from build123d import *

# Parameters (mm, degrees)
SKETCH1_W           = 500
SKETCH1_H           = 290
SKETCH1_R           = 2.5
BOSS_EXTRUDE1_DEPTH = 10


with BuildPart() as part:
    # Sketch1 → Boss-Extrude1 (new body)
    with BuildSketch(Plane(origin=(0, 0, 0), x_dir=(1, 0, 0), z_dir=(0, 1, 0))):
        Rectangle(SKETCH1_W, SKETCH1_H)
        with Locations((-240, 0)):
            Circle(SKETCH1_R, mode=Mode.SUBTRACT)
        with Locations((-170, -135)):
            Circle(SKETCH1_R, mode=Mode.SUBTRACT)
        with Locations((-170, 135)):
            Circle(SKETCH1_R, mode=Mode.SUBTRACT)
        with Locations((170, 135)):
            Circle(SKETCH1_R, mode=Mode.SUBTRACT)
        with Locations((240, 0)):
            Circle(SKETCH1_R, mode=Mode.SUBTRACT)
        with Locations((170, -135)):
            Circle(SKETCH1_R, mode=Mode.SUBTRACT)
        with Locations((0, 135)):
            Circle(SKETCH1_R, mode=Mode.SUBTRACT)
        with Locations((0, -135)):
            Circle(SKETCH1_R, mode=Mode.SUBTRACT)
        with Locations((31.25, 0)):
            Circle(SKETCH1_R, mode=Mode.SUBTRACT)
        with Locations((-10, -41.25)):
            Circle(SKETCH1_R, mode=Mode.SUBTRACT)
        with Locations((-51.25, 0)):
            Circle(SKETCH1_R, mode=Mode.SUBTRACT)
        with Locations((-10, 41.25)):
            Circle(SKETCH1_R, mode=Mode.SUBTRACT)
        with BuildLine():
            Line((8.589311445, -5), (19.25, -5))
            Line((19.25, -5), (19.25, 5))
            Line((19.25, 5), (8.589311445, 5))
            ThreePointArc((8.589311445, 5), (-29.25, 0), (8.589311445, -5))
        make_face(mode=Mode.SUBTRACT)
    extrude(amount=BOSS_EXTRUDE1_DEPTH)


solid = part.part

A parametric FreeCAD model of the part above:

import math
import FreeCAD as App
import Part
import Sketcher
from FreeCAD import Vector

doc = App.newDocument("Part")
params = doc.addObject("Spreadsheet::Sheet", "Params")
for row, (alias, value) in enumerate([
    ("sketch1_diameter", "5 mm"),
    ("sketch1_width", "500 mm"),
    ("sketch1_height", "290 mm"),
    ("sketch1_height2", "10 mm"),
    ("sketch1_radius", "19.25 mm"),
    ("pad1_length", "10 mm"),
], start=1):
    params.set(f"A{row}", alias)
    params.set(f"B{row}", "=" + value)
    params.setAlias(f"B{row}", alias)

body = doc.addObject("PartDesign::Body", "Body")

# Sketch on XZ plane
sketch1 = body.newObject("Sketcher::SketchObject", "Sketch")
sketch1.AttachmentSupport = (doc.getObject("XZ_Plane"), [""])
sketch1.MapMode = "FlatFace"
sketch1.addGeometry(Part.LineSegment(Vector(-250, -145, 0), Vector(-250, 145, 0)), False)
sketch1.addGeometry(Part.LineSegment(Vector(-250, 145, 0), Vector(250, 145, 0)), False)
sketch1.addGeometry(Part.LineSegment(Vector(250, 145, 0), Vector(250, -145, 0)), False)
sketch1.addGeometry(Part.LineSegment(Vector(250, -145, 0), Vector(-250, -145, 0)), False)
sketch1.addGeometry(Part.Circle(Vector(-170, 135, 0), Vector(0, 0, 1), 2.5), False)
sketch1.addGeometry(Part.Circle(Vector(-10, 41.25, 0), Vector(0, 0, 1), 2.5), False)
sketch1.addGeometry(Part.Circle(Vector(0, 135, 0), Vector(0, 0, 1), 2.5), False)
sketch1.addGeometry(Part.Circle(Vector(170, 135, 0), Vector(0, 0, 1), 2.5), False)
sketch1.addGeometry(Part.Circle(Vector(-240, 0, 0), Vector(0, 0, 1), 2.5), False)
sketch1.addGeometry(Part.Circle(Vector(-51.25, 0, 0), Vector(0, 0, 1), 2.5), False)
sketch1.addGeometry(Part.LineSegment(Vector(19.25, 5, 0), Vector(8.589311, 5, 0)), False)
sketch1.addGeometry(Part.ArcOfCircle(Part.Circle(Vector(-10, 0, 0), Vector(0, 0, 1), 19.25), math.radians(15.054651), math.radians(344.945349)), False)
sketch1.addGeometry(Part.LineSegment(Vector(8.589311, -5, 0), Vector(19.25, -5, 0)), False)
sketch1.addGeometry(Part.LineSegment(Vector(19.25, -5, 0), Vector(19.25, 5, 0)), False)
sketch1.addGeometry(Part.Circle(Vector(-10, -41.25, 0), Vector(0, 0, 1), 2.5), False)
sketch1.addGeometry(Part.Circle(Vector(-170, -135, 0), Vector(0, 0, 1), 2.5), False)
sketch1.addGeometry(Part.Circle(Vector(31.25, 0, 0), Vector(0, 0, 1), 2.5), False)
sketch1.addGeometry(Part.Circle(Vector(240, 0, 0), Vector(0, 0, 1), 2.5), False)
sketch1.addGeometry(Part.Circle(Vector(0, -135, 0), Vector(0, 0, 1), 2.5), False)
sketch1.addGeometry(Part.Circle(Vector(170, -135, 0), Vector(0, 0, 1), 2.5), False)
sketch1.addConstraint(Sketcher.Constraint("Coincident", 0, 2, 1, 1))
sketch1.addConstraint(Sketcher.Constraint("Coincident", 1, 2, 2, 1))
sketch1.addConstraint(Sketcher.Constraint("Coincident", 2, 2, 3, 1))
sketch1.addConstraint(Sketcher.Constraint("Coincident", 3, 2, 0, 1))
sketch1.addConstraint(Sketcher.Constraint("Coincident", 10, 2, 11, 1))
sketch1.addConstraint(Sketcher.Constraint("Coincident", 11, 2, 12, 1))
sketch1.addConstraint(Sketcher.Constraint("Coincident", 12, 2, 13, 1))
sketch1.addConstraint(Sketcher.Constraint("Coincident", 13, 2, 10, 1))
sketch1.addConstraint(Sketcher.Constraint("Vertical", 0))
sketch1.addConstraint(Sketcher.Constraint("Horizontal", 1))
sketch1.addConstraint(Sketcher.Constraint("Vertical", 2))
sketch1.addConstraint(Sketcher.Constraint("Horizontal", 3))
sketch1.addConstraint(Sketcher.Constraint("Horizontal", 10))
sketch1.addConstraint(Sketcher.Constraint("Horizontal", 12))
sketch1.addConstraint(Sketcher.Constraint("Vertical", 13))
sketch1.addConstraint(Sketcher.Constraint("Equal", 4, 5))
sketch1.addConstraint(Sketcher.Constraint("Equal", 5, 6))
sketch1.addConstraint(Sketcher.Constraint("Equal", 6, 7))
sketch1.addConstraint(Sketcher.Constraint("Equal", 7, 8))
sketch1.addConstraint(Sketcher.Constraint("Equal", 8, 9))
sketch1.addConstraint(Sketcher.Constraint("Equal", 9, 14))
sketch1.addConstraint(Sketcher.Constraint("Equal", 14, 15))
sketch1.addConstraint(Sketcher.Constraint("Equal", 15, 16))
sketch1.addConstraint(Sketcher.Constraint("Equal", 16, 17))
sketch1.addConstraint(Sketcher.Constraint("Equal", 17, 18))
sketch1.addConstraint(Sketcher.Constraint("Equal", 18, 19))
sketch1.addConstraint(Sketcher.Constraint("Symmetric", 7, 3, 15, 3, -1, 1))
sketch1.addConstraint(Sketcher.Constraint("Symmetric", 8, 3, 17, 3, -1, 1))
sketch1.addConstraint(Sketcher.Constraint("Symmetric", 6, 3, 18, 3, -1, 1))
sketch1.addConstraint(Sketcher.Constraint("Symmetric", 4, 3, 19, 3, -1, 1))
sketch1.addConstraint(Sketcher.Constraint("Symmetric", 0, 2, 2, 2, -1, 1))
sketch1.addConstraint(Sketcher.Constraint("Symmetric", 4, 3, 7, 3, -2))
sketch1.addConstraint(Sketcher.Constraint("Symmetric", 5, 3, 14, 3, -1))
sketch1.addConstraint(Sketcher.Constraint("Symmetric", 10, 2, 11, 2, -1))
sketch1.addConstraint(Sketcher.Constraint("PointOnObject", 6, 3, -2))
sketch1.addConstraint(Sketcher.Constraint("PointOnObject", 8, 3, -1))
sketch1.addConstraint(Sketcher.Constraint("PointOnObject", 9, 3, -1))
sketch1.addConstraint(Sketcher.Constraint("PointOnObject", 16, 3, -1))
sketch1.addConstraint(Sketcher.Constraint("Horizontal", 4, 3, 6, 3))
sketch1.addConstraint(Sketcher.Constraint("Vertical", 5, 3, 11, 3))
sketch1.addConstraint(Sketcher.Constraint("Diameter", 4, 5.0))
sketch1.addConstraint(Sketcher.Constraint("DistanceX", 1, 1, 1, 2, 500.0))
sketch1.addConstraint(Sketcher.Constraint("DistanceY", 0, 1, 0, 2, 290.0))
sketch1.addConstraint(Sketcher.Constraint("DistanceY", 13, 1, 13, 2, 10.0))
sketch1.addConstraint(Sketcher.Constraint("Radius", 11, 19.25))
sketch1.addConstraint(Sketcher.Constraint("DistanceX", 4, 3, -1, 1, 170.0))
sketch1.addConstraint(Sketcher.Constraint("DistanceY", -1, 1, 4, 3, 135.0))
sketch1.addConstraint(Sketcher.Constraint("DistanceX", 5, 3, -1, 1, 10.0))
sketch1.addConstraint(Sketcher.Constraint("DistanceX", 8, 3, -1, 1, 240.0))
sketch1.addConstraint(Sketcher.Constraint("DistanceX", 12, 2, 16, 3, 12.0))
sketch1.addConstraint(Sketcher.Constraint("DistanceY", 14, 3, 5, 3, 82.5))
sketch1.addConstraint(Sketcher.Constraint("DistanceX", 9, 3, 16, 3, 82.5))
sketch1.addConstraint(Sketcher.Constraint("DistanceX", 9, 3, -1, 1, 51.25))
sketch1.setExpression("Constraints[40]", "Params.sketch1_diameter")
sketch1.setExpression("Constraints[41]", "Params.sketch1_width")
sketch1.setExpression("Constraints[42]", "Params.sketch1_height")
sketch1.setExpression("Constraints[43]", "Params.sketch1_height2")
sketch1.setExpression("Constraints[44]", "Params.sketch1_radius")
pad1 = body.newObject("PartDesign::Pad", "Pad")
pad1.Profile = sketch1
pad1.setExpression("Length", "Params.pad1_length")
pad1.Reversed = True

doc.recompute()
